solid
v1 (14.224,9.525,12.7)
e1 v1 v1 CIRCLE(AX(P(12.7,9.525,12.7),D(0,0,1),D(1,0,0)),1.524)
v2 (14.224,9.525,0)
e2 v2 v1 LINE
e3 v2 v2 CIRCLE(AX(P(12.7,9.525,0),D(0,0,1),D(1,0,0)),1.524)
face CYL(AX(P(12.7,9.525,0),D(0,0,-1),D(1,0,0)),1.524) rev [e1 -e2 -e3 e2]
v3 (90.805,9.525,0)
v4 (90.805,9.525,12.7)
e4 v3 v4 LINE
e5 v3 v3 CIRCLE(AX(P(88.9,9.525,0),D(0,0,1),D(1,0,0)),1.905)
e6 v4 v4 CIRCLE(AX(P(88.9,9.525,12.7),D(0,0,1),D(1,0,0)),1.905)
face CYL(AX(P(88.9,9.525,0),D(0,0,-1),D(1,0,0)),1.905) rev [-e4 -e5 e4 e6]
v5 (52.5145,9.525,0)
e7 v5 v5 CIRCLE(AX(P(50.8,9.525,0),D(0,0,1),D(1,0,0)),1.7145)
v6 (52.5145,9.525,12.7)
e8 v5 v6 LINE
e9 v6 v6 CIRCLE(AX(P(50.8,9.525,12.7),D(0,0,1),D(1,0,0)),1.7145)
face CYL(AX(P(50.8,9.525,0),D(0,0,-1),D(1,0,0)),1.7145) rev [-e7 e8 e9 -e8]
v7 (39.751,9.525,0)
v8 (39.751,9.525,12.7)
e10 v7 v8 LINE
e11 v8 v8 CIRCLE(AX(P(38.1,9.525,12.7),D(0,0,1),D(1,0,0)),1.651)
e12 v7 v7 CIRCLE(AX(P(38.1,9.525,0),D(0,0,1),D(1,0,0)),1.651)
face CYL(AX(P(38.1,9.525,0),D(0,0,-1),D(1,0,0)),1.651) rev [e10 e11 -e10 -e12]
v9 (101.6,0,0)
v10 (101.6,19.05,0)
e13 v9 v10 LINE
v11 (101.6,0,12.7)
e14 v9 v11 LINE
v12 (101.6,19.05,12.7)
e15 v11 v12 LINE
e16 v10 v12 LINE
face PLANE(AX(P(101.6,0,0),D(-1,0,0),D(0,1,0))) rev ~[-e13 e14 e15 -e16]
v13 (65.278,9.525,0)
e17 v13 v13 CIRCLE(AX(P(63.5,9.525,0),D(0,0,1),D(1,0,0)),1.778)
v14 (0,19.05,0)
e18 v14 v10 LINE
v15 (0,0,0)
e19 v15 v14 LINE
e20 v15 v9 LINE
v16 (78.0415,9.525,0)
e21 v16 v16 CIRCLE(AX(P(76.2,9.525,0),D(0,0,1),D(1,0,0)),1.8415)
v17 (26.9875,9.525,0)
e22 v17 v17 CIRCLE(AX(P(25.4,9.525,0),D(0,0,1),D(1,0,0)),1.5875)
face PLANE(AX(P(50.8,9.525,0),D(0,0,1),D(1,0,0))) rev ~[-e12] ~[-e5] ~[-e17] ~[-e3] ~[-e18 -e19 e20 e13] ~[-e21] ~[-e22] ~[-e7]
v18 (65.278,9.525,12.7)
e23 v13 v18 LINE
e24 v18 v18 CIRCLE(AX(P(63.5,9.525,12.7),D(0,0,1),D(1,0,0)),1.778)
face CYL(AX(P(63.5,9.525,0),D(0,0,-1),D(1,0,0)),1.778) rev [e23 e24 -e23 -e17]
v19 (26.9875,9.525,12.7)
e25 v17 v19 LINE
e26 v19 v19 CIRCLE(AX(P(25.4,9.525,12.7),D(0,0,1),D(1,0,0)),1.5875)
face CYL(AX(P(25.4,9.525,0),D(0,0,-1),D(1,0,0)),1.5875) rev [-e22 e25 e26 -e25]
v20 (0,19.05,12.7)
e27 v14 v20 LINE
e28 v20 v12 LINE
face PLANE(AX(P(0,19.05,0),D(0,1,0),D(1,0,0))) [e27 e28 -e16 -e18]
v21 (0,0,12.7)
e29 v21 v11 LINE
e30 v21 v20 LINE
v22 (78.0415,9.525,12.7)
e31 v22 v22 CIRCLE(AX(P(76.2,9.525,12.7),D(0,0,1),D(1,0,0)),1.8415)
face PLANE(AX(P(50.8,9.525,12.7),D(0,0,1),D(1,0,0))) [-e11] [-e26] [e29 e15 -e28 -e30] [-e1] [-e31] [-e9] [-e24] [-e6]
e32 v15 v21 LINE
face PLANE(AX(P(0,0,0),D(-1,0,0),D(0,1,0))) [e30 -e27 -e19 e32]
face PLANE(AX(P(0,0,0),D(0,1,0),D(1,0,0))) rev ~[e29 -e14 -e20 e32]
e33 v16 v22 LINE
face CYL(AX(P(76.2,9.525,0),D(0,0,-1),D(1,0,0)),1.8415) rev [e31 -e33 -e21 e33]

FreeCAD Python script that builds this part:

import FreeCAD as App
import Part
import Sketcher
Q = App.Units.Quantity

doc = App.newDocument("Part")
body = doc.addObject("PartDesign::Body", "Body")

sketch1 = body.newObject("Sketcher::SketchObject", "Sketch")
sketch1.AttachmentSupport = (doc.getObject("XY_Plane"), [""])
sketch1.MapMode = "FlatFace"
sketch1.addGeometry([
    Part.LineSegment(App.Vector(0, 19.1, 0), App.Vector(0, 0, 0)),
    Part.LineSegment(App.Vector(0, 0, 0), App.Vector(101.6, 0, 0)),
    Part.LineSegment(App.Vector(101.6, 0, 0), App.Vector(101.6, 19.1, 0)),
    Part.LineSegment(App.Vector(101.6, 19.1, 0), App.Vector(0, 19.1, 0)),
    Part.Circle(App.Vector(12.7, 9.5, 0), App.Vector(0, 0, 1), 1.5),
    Part.Circle(App.Vector(25.4, 9.5, 0), App.Vector(0, 0, 1), 1.6),
    Part.Circle(App.Vector(38.1, 9.5, 0), App.Vector(0, 0, 1), 1.7),
    Part.Circle(App.Vector(50.8, 9.5, 0), App.Vector(0, 0, 1), 1.7),
    Part.Circle(App.Vector(63.5, 9.5, 0), App.Vector(0, 0, 1), 1.8),
    Part.Circle(App.Vector(76.2, 9.5, 0), App.Vector(0, 0, 1), 1.8),
    Part.Circle(App.Vector(88.9, 9.5, 0), App.Vector(0, 0, 1), 1.9),
], False)
sketch1.addConstraint([
    Sketcher.Constraint("Coincident", 0, 2, 1, 1),
    Sketcher.Constraint("Coincident", 1, 2, 2, 1),
    Sketcher.Constraint("Coincident", 2, 2, 3, 1),
    Sketcher.Constraint("Coincident", 3, 2, 0, 1),
    Sketcher.Constraint("Vertical", 0),
    Sketcher.Constraint("Horizontal", 1),
    Sketcher.Constraint("Vertical", 2),
    Sketcher.Constraint("Horizontal", 3),
    Sketcher.Constraint("Coincident", 0, 2, -1, 1),
    Sketcher.Constraint("Horizontal", 4, 3, 5, 3),
    Sketcher.Constraint("Horizontal", 5, 3, 6, 3),
    Sketcher.Constraint("Horizontal", 6, 3, 7, 3),
    Sketcher.Constraint("Horizontal", 7, 3, 8, 3),
    Sketcher.Constraint("Horizontal", 8, 3, 9, 3),
    Sketcher.Constraint("Horizontal", 9, 3, 10, 3),
    Sketcher.Constraint("Diameter", 4, Q("0.12 in")),
    Sketcher.Constraint("Diameter", 6, Q("0.13 in")),
    Sketcher.Constraint("Diameter", 8, Q("0.14 in")),
    Sketcher.Constraint("Diameter", 10, Q("0.15 in")),
    Sketcher.Constraint("DistanceX", 1, 1, 1, 2, Q("4 in")),
    Sketcher.Constraint("Diameter", 5, Q("0.125 in")),
    Sketcher.Constraint("Diameter", 7, Q("0.135 in")),
    Sketcher.Constraint("Diameter", 9, Q("0.145 in")),
    Sketcher.Constraint("DistanceX", -1, 1, 5, 3, Q("1 in")),
    Sketcher.Constraint("DistanceX", -1, 1, 7, 3, Q("2 in")),
    Sketcher.Constraint("DistanceX", -1, 1, 9, 3, Q("3 in")),
    Sketcher.Constraint("DistanceX", 4, 3, 6, 3, Q("1 in")),
    Sketcher.Constraint("DistanceX", 6, 3, 8, 3, Q("1 in")),
    Sketcher.Constraint("DistanceX", 8, 3, 10, 3, Q("1 in")),
    Sketcher.Constraint("DistanceY", 0, 2, 0, 1, Q("0.75 in")),
    Sketcher.Constraint("DistanceX", -1, 1, 4, 3, Q("0.5 in")),
    Sketcher.Constraint("DistanceY", -1, 1, 4, 3, Q("0.375 in")),
])
pad1 = body.newObject("PartDesign::Pad", "Pad")
pad1.Profile = sketch1
pad1.Length = Q("0.5 in")

doc.recompute()
